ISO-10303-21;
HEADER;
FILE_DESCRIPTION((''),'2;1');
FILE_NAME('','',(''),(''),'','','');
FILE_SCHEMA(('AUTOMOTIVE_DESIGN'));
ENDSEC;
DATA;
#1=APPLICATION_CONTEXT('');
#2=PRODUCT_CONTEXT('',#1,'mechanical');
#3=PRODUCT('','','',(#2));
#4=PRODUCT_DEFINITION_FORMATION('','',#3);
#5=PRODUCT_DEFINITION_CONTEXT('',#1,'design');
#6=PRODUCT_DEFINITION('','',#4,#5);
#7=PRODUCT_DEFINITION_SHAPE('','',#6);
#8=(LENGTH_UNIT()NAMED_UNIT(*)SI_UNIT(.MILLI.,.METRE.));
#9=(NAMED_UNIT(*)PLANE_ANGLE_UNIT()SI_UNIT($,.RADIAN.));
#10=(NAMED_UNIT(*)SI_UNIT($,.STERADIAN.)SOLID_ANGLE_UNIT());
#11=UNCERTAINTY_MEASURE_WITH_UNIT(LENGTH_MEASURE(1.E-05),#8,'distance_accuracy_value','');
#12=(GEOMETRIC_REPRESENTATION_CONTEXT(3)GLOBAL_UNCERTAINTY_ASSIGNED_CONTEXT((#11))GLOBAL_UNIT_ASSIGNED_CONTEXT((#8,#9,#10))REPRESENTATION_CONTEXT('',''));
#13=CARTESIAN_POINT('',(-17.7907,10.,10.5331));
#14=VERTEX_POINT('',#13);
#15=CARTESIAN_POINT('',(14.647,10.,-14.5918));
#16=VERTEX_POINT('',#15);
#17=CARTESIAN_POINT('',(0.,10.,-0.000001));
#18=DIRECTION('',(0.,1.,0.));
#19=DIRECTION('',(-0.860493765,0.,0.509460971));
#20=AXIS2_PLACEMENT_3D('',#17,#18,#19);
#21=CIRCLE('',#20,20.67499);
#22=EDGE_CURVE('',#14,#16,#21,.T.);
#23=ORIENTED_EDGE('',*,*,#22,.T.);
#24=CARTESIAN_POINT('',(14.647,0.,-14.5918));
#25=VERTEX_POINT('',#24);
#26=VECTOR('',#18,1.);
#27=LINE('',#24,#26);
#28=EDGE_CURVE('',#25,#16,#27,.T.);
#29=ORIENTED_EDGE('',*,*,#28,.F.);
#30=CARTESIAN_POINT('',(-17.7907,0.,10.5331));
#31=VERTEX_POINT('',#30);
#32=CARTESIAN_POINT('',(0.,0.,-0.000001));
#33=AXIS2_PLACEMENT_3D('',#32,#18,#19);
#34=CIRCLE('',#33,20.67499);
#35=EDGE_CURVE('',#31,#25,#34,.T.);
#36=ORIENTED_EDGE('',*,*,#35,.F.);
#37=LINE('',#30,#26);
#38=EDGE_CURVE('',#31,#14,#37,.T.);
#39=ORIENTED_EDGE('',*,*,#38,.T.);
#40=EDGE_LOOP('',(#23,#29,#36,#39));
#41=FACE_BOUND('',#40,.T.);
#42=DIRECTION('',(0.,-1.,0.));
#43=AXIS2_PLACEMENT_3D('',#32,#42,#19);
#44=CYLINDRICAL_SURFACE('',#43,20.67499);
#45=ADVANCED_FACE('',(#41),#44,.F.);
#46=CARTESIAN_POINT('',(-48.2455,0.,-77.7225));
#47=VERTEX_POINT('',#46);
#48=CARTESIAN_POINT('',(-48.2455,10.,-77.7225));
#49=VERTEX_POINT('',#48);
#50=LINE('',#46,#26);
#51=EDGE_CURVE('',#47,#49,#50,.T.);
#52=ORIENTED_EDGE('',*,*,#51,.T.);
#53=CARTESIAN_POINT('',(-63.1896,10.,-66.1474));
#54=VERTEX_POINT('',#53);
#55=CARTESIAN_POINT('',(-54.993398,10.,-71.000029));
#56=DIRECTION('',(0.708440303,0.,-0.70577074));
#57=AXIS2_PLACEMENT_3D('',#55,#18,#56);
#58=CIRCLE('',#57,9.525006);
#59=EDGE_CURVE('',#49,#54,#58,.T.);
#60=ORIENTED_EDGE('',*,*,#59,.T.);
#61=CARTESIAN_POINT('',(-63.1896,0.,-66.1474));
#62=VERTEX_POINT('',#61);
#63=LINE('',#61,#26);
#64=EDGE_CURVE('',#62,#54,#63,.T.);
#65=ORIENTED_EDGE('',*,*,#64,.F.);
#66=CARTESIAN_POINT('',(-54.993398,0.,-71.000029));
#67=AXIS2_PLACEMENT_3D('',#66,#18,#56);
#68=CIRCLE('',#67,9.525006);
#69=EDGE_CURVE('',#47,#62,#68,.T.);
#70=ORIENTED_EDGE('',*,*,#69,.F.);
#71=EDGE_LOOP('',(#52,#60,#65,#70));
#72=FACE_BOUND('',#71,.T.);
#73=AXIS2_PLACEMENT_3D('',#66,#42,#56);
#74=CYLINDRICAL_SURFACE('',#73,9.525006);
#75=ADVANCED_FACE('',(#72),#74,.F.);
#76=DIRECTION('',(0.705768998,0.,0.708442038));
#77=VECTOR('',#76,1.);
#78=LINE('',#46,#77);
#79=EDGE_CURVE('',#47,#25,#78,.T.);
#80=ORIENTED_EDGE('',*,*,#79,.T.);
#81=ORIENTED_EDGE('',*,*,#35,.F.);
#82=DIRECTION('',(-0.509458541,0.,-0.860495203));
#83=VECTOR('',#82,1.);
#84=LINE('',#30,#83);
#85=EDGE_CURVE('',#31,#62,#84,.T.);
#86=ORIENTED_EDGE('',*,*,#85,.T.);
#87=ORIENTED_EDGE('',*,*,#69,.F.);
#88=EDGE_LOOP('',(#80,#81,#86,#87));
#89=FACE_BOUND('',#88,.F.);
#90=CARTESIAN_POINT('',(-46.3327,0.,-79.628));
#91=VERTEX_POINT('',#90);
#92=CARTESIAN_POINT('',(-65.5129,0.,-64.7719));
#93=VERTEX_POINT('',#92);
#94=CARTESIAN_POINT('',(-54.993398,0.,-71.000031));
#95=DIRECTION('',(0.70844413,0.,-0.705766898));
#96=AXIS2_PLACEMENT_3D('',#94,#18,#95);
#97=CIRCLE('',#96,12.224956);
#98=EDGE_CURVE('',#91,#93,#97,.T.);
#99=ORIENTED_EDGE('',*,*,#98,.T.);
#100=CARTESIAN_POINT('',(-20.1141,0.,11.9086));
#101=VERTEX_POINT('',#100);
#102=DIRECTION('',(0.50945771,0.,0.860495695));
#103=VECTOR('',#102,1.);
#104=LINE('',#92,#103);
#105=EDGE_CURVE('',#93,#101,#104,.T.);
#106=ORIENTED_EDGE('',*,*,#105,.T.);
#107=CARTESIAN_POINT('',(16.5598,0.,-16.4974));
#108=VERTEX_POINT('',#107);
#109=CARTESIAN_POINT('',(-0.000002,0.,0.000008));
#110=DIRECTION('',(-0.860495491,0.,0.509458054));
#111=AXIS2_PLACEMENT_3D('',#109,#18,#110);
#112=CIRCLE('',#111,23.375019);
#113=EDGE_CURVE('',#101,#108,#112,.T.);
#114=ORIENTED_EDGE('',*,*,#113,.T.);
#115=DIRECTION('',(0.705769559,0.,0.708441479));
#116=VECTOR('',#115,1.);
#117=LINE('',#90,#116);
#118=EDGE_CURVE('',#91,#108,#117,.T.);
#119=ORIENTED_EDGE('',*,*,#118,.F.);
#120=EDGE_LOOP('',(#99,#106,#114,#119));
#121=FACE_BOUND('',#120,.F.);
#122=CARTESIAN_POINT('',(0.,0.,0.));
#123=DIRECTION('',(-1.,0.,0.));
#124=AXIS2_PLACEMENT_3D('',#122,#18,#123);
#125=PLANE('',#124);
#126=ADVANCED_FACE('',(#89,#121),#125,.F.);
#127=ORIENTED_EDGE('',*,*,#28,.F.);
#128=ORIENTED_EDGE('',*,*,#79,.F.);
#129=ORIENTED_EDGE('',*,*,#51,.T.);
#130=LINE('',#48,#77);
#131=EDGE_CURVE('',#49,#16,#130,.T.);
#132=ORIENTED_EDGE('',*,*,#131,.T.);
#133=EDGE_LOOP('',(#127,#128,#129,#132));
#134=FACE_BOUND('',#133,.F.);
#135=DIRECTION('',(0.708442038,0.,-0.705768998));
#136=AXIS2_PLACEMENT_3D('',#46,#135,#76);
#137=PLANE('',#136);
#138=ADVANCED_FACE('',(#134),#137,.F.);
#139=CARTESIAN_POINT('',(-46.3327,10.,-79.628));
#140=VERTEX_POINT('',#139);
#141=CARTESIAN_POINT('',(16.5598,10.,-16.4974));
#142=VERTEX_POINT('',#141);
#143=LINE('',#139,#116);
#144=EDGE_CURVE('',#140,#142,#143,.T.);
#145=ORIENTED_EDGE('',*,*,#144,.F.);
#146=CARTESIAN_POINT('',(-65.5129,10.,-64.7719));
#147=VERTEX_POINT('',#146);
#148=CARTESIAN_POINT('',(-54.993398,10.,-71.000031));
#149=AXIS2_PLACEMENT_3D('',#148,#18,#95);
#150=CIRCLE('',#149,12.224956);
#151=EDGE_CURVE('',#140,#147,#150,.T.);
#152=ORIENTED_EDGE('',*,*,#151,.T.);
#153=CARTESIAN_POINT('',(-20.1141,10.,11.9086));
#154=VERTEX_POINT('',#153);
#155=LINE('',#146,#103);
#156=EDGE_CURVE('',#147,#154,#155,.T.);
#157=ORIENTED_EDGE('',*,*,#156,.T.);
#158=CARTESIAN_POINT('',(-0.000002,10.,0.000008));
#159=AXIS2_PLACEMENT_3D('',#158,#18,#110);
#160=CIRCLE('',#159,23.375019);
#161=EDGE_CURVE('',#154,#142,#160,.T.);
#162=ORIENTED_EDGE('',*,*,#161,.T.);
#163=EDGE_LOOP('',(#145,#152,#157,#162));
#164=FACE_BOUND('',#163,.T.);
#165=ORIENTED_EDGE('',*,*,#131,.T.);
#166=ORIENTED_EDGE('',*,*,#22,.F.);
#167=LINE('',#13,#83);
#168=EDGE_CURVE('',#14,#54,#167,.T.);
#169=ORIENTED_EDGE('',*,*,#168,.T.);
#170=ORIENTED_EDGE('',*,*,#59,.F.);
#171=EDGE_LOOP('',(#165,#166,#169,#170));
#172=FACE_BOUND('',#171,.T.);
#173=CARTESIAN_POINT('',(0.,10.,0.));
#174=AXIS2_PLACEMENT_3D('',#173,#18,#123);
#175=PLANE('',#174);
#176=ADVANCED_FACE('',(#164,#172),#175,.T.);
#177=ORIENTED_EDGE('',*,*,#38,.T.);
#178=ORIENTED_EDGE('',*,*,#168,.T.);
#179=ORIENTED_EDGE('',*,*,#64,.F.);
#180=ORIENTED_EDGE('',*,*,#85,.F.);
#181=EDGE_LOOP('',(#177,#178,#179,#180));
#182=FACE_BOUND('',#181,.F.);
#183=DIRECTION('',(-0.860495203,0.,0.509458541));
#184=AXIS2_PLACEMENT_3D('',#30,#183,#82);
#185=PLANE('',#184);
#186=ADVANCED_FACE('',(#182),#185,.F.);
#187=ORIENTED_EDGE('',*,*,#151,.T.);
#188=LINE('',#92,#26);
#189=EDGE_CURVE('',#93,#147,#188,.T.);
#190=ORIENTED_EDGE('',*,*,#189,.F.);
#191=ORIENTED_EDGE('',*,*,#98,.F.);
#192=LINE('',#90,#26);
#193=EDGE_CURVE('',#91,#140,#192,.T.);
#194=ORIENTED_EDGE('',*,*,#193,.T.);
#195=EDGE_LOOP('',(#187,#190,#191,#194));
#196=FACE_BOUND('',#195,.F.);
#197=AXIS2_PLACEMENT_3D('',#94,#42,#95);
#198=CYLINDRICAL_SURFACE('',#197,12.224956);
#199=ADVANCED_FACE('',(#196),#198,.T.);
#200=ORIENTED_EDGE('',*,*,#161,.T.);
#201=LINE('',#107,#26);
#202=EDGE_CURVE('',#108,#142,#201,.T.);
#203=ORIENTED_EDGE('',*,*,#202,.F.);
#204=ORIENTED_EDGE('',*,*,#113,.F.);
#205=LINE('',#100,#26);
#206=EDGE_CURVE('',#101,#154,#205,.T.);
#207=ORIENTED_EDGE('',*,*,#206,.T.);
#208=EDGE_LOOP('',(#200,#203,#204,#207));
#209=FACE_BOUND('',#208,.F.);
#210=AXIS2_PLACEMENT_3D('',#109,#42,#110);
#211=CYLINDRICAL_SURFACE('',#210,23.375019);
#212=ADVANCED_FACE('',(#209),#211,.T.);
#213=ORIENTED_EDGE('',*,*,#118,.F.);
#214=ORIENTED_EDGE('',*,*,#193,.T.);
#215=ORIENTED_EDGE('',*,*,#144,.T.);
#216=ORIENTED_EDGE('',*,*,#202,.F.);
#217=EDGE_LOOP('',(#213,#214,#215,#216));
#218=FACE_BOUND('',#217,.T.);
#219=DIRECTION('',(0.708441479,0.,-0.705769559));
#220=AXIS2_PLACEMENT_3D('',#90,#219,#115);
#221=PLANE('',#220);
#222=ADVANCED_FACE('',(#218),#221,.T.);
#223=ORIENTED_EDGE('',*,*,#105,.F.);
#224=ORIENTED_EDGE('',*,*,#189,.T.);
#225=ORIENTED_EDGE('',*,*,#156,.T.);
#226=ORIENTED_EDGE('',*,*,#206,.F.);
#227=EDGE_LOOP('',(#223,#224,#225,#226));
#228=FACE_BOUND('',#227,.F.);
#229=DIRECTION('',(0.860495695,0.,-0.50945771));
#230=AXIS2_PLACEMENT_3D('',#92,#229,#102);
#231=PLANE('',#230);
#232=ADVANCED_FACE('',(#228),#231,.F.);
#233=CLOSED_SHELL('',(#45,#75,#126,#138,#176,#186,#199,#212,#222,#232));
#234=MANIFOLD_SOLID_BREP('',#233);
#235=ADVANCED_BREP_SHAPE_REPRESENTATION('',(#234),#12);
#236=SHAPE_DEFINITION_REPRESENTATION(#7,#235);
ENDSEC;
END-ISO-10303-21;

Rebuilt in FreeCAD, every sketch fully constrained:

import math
import FreeCAD as App
import Part
import Sketcher

V = App.Vector
Q = App.Units.Quantity

doc = App.newDocument("Part")
body = doc.addObject("PartDesign::Body", "Body")

# Sketch on XZ plane
sketch1 = doc.addObject("Sketcher::SketchObject", "Sketch")
body.addObject(sketch1)
sketch1.AttachmentSupport = (doc.XZ_Plane, [""])
sketch1.MapMode = "FlatFace"
sketch1.addGeometry(Part.LineSegment(V(16.5598, -16.4974, 0), V(-46.3327, -79.628, 0)), False)
sketch1.addGeometry(Part.ArcOfCircle(Part.Circle(V(-54.9934, -71, 0), V(0, 0, 1), 12.224979), math.radians(149.372225), math.radians(315.10837)), False)
sketch1.addGeometry(Part.LineSegment(V(-65.5129, -64.7719, 0), V(-20.1141, 11.9086, 0)), False)
sketch1.addGeometry(Part.ArcOfCircle(Part.Circle(V(0, 0, 0), V(0, 0, 1), 23.375025), math.radians(-44.891846), math.radians(149.372247)), False)
sketch1.addGeometry(Part.ArcOfCircle(Part.Circle(V(-54.9934, -71, 0), V(0, 0, 1), 9.525028), math.radians(149.37214), math.radians(315.108038)), False)
sketch1.addGeometry(Part.LineSegment(V(-48.2455, -77.7225, 0), V(14.647, -14.5918, 0)), False)
sketch1.addGeometry(Part.ArcOfCircle(Part.Circle(V(0, 0, 0), V(0, 0, 1), 20.67499), math.radians(-44.891831), math.radians(149.372069)), False)
sketch1.addGeometry(Part.LineSegment(V(-17.7907, 10.5331, 0), V(-63.1896, -66.1474, 0)), False)
sketch1.addConstraint(Sketcher.Constraint("Coincident", 0, 2, 1, 2))
sketch1.addConstraint(Sketcher.Constraint("Coincident", 1, 1, 2, 1))
sketch1.addConstraint(Sketcher.Constraint("Coincident", 2, 2, 3, 2))
sketch1.addConstraint(Sketcher.Constraint("Coincident", 3, 1, 0, 1))
sketch1.addConstraint(Sketcher.Constraint("Coincident", 4, 2, 5, 1))
sketch1.addConstraint(Sketcher.Constraint("Coincident", 5, 2, 6, 1))
sketch1.addConstraint(Sketcher.Constraint("Coincident", 6, 2, 7, 1))
sketch1.addConstraint(Sketcher.Constraint("Coincident", 7, 2, 4, 1))
sketch1.addConstraint(Sketcher.Constraint("Coincident", 3, 3, -1, 1))
sketch1.addConstraint(Sketcher.Constraint("Coincident", 6, 3, -1, 1))
sketch1.addConstraint(Sketcher.Constraint("Coincident", 4, 3, 1, 3))
sketch1.addConstraint(Sketcher.Constraint("Radius", 4, Q("0.375 in")))
sketch1.addConstraint(Sketcher.Constraint("Radius", 1, Q("0.4813 in")))
sketch1.addConstraint(Sketcher.Constraint("Radius", 3, 23.375))
sketch1.addConstraint(Sketcher.Constraint("Radius", 6, 20.675))
sketch1.addConstraint(Sketcher.Constraint("DistanceX", 1, 3, -1, 1, Q("2.1651 in")))
sketch1.addConstraint(Sketcher.Constraint("DistanceX", 2, 2, -1, 1, Q("0.7919 in")))
sketch1.addConstraint(Sketcher.Constraint("DistanceY", 3, 1, -1, 1, Q("0.6495 in")))
sketch1.addConstraint(Sketcher.Constraint("DistanceY", -1, 1, 6, 2, Q("0.4147 in")))
sketch1.addConstraint(Sketcher.Constraint("DistanceY", 1, 3, 1, 1, Q("0.2452 in")))
sketch1.addConstraint(Sketcher.Constraint("DistanceX", 4, 2, 0, 2, Q("0.0753 in")))
sketch1.addConstraint(Sketcher.Constraint("DistanceX", 4, 2, 3, 1, Q("2.5514 in")))
sketch1.addConstraint(Sketcher.Constraint("DistanceX", 5, 2, 3, 1, Q("0.0753 in")))
sketch1.addConstraint(Sketcher.Constraint("Distance", 0, 89.112))
sketch1.addConstraint(Sketcher.Constraint("Distance", 7, 89.112))
pad1 = doc.addObject("PartDesign::Pad", "Pad")
body.addObject(pad1)
pad1.Profile = sketch1
pad1.Length = Q("0.3937008 in")
pad1.Reversed = True

doc.recompute()
